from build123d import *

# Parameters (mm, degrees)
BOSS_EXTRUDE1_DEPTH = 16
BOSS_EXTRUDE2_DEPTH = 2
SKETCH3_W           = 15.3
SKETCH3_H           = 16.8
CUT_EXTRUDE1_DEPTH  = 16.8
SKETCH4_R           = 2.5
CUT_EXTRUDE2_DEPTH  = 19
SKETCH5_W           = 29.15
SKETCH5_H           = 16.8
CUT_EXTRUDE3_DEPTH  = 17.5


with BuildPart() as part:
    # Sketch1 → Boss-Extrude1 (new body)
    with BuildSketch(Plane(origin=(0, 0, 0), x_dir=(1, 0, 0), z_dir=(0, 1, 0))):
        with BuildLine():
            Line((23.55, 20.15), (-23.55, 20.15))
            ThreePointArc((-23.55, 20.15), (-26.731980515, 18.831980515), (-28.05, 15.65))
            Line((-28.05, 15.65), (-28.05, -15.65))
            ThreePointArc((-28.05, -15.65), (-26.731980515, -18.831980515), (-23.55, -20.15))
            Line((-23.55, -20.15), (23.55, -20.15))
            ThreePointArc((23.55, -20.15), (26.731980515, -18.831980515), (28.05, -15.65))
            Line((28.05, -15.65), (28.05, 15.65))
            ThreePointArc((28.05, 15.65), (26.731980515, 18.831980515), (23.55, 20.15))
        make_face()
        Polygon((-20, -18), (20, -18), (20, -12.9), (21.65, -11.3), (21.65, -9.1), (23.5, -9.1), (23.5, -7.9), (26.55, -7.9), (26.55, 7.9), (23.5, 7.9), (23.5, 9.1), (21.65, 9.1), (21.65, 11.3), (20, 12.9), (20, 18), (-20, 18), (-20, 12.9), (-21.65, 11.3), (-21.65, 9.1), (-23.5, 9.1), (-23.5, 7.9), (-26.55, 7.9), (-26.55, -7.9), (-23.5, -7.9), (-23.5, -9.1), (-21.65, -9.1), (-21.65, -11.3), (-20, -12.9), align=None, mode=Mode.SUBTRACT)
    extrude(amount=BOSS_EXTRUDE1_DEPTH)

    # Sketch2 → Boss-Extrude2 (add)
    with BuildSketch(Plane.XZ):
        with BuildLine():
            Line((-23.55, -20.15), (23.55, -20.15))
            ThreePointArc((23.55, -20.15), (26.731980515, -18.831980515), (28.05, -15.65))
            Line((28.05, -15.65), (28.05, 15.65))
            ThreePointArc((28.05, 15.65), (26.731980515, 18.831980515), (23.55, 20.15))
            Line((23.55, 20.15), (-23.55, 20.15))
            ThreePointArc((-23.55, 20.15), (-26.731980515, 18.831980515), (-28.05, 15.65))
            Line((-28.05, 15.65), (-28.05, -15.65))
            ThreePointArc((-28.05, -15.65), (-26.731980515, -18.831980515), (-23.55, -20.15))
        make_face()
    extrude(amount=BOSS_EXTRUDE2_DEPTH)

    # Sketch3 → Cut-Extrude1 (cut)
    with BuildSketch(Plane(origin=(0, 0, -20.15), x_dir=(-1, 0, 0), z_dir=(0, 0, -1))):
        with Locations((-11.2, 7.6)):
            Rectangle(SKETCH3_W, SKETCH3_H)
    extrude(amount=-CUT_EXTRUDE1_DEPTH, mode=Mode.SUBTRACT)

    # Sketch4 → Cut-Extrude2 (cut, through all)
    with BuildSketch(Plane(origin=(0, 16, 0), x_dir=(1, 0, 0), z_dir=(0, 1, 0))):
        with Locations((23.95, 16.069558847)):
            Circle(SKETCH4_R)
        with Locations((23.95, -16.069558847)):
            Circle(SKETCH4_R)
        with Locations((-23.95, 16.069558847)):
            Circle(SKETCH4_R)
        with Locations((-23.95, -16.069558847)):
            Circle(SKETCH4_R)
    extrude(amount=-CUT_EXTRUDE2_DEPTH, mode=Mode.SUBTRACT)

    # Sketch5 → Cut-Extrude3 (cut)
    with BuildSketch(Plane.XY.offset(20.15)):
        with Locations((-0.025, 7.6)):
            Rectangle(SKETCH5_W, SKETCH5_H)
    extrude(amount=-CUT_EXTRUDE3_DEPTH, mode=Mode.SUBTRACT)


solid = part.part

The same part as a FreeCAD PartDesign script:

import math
import FreeCAD as App
import Part
import Sketcher

V = App.Vector
Q = App.Units.Quantity

doc = App.newDocument("Part")
body = doc.addObject("PartDesign::Body", "Body")

sketch1 = body.newObject("Sketcher::SketchObject", "Sketch")
sketch1.AttachmentSupport = (doc.getObject("XZ_Plane"), [""])
sketch1.MapMode = "FlatFace"
sketch1.addGeometry([
    Part.LineSegment(V(23.6, -20.1, 0), V(-23.6, -20.1, 0)),
    Part.ArcOfCircle(Part.Circle(V(-23.5, -15.6, 0), V(0, 0, 1), 4.5), math.radians(-180), math.radians(-90)),
    Part.LineSegment(V(-28.1, -15.7, 0), V(-28.1, 15.7, 0)),
    Part.ArcOfCircle(Part.Circle(V(-23.5, 15.6, 0), V(0, 0, 1), 4.5), math.radians(90), math.radians(180)),
    Part.LineSegment(V(-23.6, 20.1, 0), V(23.6, 20.1, 0)),
    Part.ArcOfCircle(Part.Circle(V(23.5, 15.6, 0), V(0, 0, 1), 4.5), math.radians(0), math.radians(90)),
    Part.LineSegment(V(28.1, 15.7, 0), V(28.1, -15.7, 0)),
    Part.ArcOfCircle(Part.Circle(V(23.5, -15.6, 0), V(0, 0, 1), 4.5), math.radians(-90), math.radians(0)),
    Part.LineSegment(V(20, 18, 0), V(-20, 18, 0)),
    Part.LineSegment(V(-20, 18, 0), V(-20, 12.9, 0)),
    Part.LineSegment(V(-20, 12.9, 0), V(-21.6, 11.3, 0)),
    Part.LineSegment(V(-21.6, 11.3, 0), V(-21.6, 9.1, 0)),
    Part.LineSegment(V(-21.6, 9.1, 0), V(-23.5, 9.1, 0)),
    Part.LineSegment(V(-23.5, 9.1, 0), V(-23.5, 7.9, 0)),
    Part.LineSegment(V(-23.5, 7.9, 0), V(-26.6, 7.9, 0)),
    Part.LineSegment(V(-26.6, 7.9, 0), V(-26.6, -7.9, 0)),
    Part.LineSegment(V(-26.6, -7.9, 0), V(-23.5, -7.9, 0)),
    Part.LineSegment(V(-23.5, -7.9, 0), V(-23.5, -9.1, 0)),
    Part.LineSegment(V(-23.5, -9.1, 0), V(-21.6, -9.1, 0)),
    Part.LineSegment(V(-21.6, -9.1, 0), V(-21.6, -11.3, 0)),
    Part.LineSegment(V(-21.6, -11.3, 0), V(-20, -12.9, 0)),
    Part.LineSegment(V(-20, -12.9, 0), V(-20, -18, 0)),
    Part.LineSegment(V(-20, -18, 0), V(20, -18, 0)),
    Part.LineSegment(V(20, -18, 0), V(20, -12.9, 0)),
    Part.LineSegment(V(20, -12.9, 0), V(21.6, -11.3, 0)),
    Part.LineSegment(V(21.6, -11.3, 0), V(21.6, -9.1, 0)),
    Part.LineSegment(V(21.6, -9.1, 0), V(23.5, -9.1, 0)),
    Part.LineSegment(V(23.5, -9.1, 0), V(23.5, -7.9, 0)),
    Part.LineSegment(V(23.5, -7.9, 0), V(26.6, -7.9, 0)),
    Part.LineSegment(V(26.6, -7.9, 0), V(26.6, 7.9, 0)),
    Part.LineSegment(V(26.6, 7.9, 0), V(23.5, 7.9, 0)),
    Part.LineSegment(V(23.5, 7.9, 0), V(23.5, 9.1, 0)),
    Part.LineSegment(V(23.5, 9.1, 0), V(21.6, 9.1, 0)),
    Part.LineSegment(V(21.6, 9.1, 0), V(21.6, 11.3, 0)),
    Part.LineSegment(V(21.6, 11.3, 0), V(20, 12.9, 0)),
    Part.LineSegment(V(20, 12.9, 0), V(20, 18, 0)),
], False)
sketch1.addConstraint([
    Sketcher.Constraint("Tangent", 0, 2, 1, 2),
    Sketcher.Constraint("Tangent", 1, 1, 2, 1),
    Sketcher.Constraint("Tangent", 2, 2, 3, 2),
    Sketcher.Constraint("Tangent", 3, 1, 4, 1),
    Sketcher.Constraint("Tangent", 4, 2, 5, 2),
    Sketcher.Constraint("Tangent", 5, 1, 6, 1),
    Sketcher.Constraint("Tangent", 6, 2, 7, 2),
    Sketcher.Constraint("Tangent", 7, 1, 0, 1),
    Sketcher.Constraint("Coincident", 8, 2, 9, 1),
    Sketcher.Constraint("Coincident", 9, 2, 10, 1),
    Sketcher.Constraint("Coincident", 10, 2, 11, 1),
    Sketcher.Constraint("Coincident", 11, 2, 12, 1),
    Sketcher.Constraint("Coincident", 12, 2, 13, 1),
    Sketcher.Constraint("Coincident", 13, 2, 14, 1),
    Sketcher.Constraint("Coincident", 14, 2, 15, 1),
    Sketcher.Constraint("Coincident", 15, 2, 16, 1),
    Sketcher.Constraint("Coincident", 16, 2, 17, 1),
    Sketcher.Constraint("Coincident", 17, 2, 18, 1),
    Sketcher.Constraint("Coincident", 18, 2, 19, 1),
    Sketcher.Constraint("Coincident", 19, 2, 20, 1),
    Sketcher.Constraint("Coincident", 20, 2, 21, 1),
    Sketcher.Constraint("Coincident", 21, 2, 22, 1),
    Sketcher.Constraint("Coincident", 22, 2, 23, 1),
    Sketcher.Constraint("Coincident", 23, 2, 24, 1),
    Sketcher.Constraint("Coincident", 24, 2, 25, 1),
    Sketcher.Constraint("Coincident", 25, 2, 26, 1),
    Sketcher.Constraint("Coincident", 26, 2, 27, 1),
    Sketcher.Constraint("Coincident", 27, 2, 28, 1),
    Sketcher.Constraint("Coincident", 28, 2, 29, 1),
    Sketcher.Constraint("Coincident", 29, 2, 30, 1),
    Sketcher.Constraint("Coincident", 30, 2, 31, 1),
    Sketcher.Constraint("Coincident", 31, 2, 32, 1),
    Sketcher.Constraint("Coincident", 32, 2, 33, 1),
    Sketcher.Constraint("Coincident", 33, 2, 34, 1),
    Sketcher.Constraint("Coincident", 34, 2, 35, 1),
    Sketcher.Constraint("Coincident", 35, 2, 8, 1),
    Sketcher.Constraint("Horizontal", 0),
    Sketcher.Constraint("Vertical", 2),
    Sketcher.Constraint("Horizontal", 4),
    Sketcher.Constraint("Vertical", 6),
    Sketcher.Constraint("Horizontal", 8),
    Sketcher.Constraint("Vertical", 9),
    Sketcher.Constraint("Vertical", 11),
    Sketcher.Constraint("Horizontal", 12),
    Sketcher.Constraint("Vertical", 13),
    Sketcher.Constraint("Horizontal", 14),
    Sketcher.Constraint("Vertical", 15),
    Sketcher.Constraint("Horizontal", 16),
    Sketcher.Constraint("Vertical", 17),
    Sketcher.Constraint("Horizontal", 18),
    Sketcher.Constraint("Vertical", 19),
    Sketcher.Constraint("Vertical", 21),
    Sketcher.Constraint("Horizontal", 22),
    Sketcher.Constraint("Vertical", 23),
    Sketcher.Constraint("Vertical", 25),
    Sketcher.Constraint("Horizontal", 26),
    Sketcher.Constraint("Vertical", 27),
    Sketcher.Constraint("Horizontal", 28),
    Sketcher.Constraint("Vertical", 29),
    Sketcher.Constraint("Horizontal", 30),
    Sketcher.Constraint("Vertical", 31),
    Sketcher.Constraint("Horizontal", 32),
    Sketcher.Constraint("Vertical", 33),
    Sketcher.Constraint("Vertical", 35),
    Sketcher.Constraint("Equal", 1, 3),
    Sketcher.Constraint("Equal", 3, 5),
    Sketcher.Constraint("Equal", 5, 7),
    Sketcher.Constraint("Symmetric", 1, 3, 5, 3, -1, 1),
    Sketcher.Constraint("Symmetric", 8, 2, 22, 2, -1, 1),
    Sketcher.Constraint("Symmetric", 10, 2, 24, 2, -1, 1),
    Sketcher.Constraint("Symmetric", 12, 2, 26, 2, -1, 1),
    Sketcher.Constraint("Symmetric", 14, 2, 28, 2, -1, 1),
    Sketcher.Constraint("Symmetric", 16, 2, 30, 2, -1, 1),
    Sketcher.Constraint("Symmetric", 18, 2, 32, 2, -1, 1),
    Sketcher.Constraint("Symmetric", 20, 2, 34, 2, -1, 1),
    Sketcher.Constraint("Symmetric", 20, 2, 23, 2, -2),
    Sketcher.Constraint("Symmetric", 19, 2, 24, 2, -2),
    Sketcher.Constraint("Symmetric", 17, 2, 26, 2, -2),
    Sketcher.Constraint("Parallel", 10, 24),
    Sketcher.Constraint("Parallel", 20, 34),
    Sketcher.Constraint("Horizontal", 16, 2, 27, 2),
    Sketcher.Constraint("Radius", 1, Q("4.5 mm")),
    Sketcher.Constraint("DistanceX", 8, 2, 8, 1, Q("40 mm")),
    Sketcher.Constraint("DistanceX", 0, 2, 0, 1, Q("47.1 mm")),
    Sketcher.Constraint("DistanceY", 2, 1, 2, 2, Q("31.3 mm")),
    Sketcher.Constraint("DistanceY", 9, 2, 9, 1, Q("5.1 mm")),
    Sketcher.Constraint("DistanceY", 11, 2, 11, 1, Q("2.2 mm")),
    Sketcher.Constraint("DistanceY", 13, 2, 13, 1, Q("1.2 mm")),
    Sketcher.Constraint("DistanceY", 15, 2, 15, 1, Q("15.8 mm")),
    Sketcher.Constraint("DistanceY", -1, 1, 8, 2, Q("18 mm")),
    Sketcher.Constraint("DistanceX", 15, 2, 1, 3, Q("3 mm")),
    Sketcher.Constraint("DistanceX", 12, 2, 12, 1, Q("1.85 mm")),
    Sketcher.Constraint("DistanceX", 14, 2, 14, 1, Q("3.05 mm")),
])
pad1 = body.newObject("PartDesign::Pad", "Pad")
pad1.Profile = sketch1
pad1.Length = 16
pad1.Reversed = True

sketch2 = body.newObject("Sketcher::SketchObject", "Sketch001")
sketch2.AttachmentSupport = (doc.getObject("XZ_Plane"), [""])
sketch2.MapMode = "FlatFace"
sketch2.addGeometry([
    Part.LineSegment(V(-23.6, -20.1, 0), V(23.6, -20.1, 0)),
    Part.ArcOfCircle(Part.Circle(V(23.5, -15.6, 0), V(0, 0, 1), 4.5), math.radians(-90), math.radians(0)),
    Part.LineSegment(V(28.1, -15.7, 0), V(28.1, 15.7, 0)),
    Part.ArcOfCircle(Part.Circle(V(23.5, 15.6, 0), V(0, 0, 1), 4.5), math.radians(0), math.radians(90)),
    Part.LineSegment(V(23.6, 20.1, 0), V(-23.6, 20.1, 0)),
    Part.ArcOfCircle(Part.Circle(V(-23.5, 15.6, 0), V(0, 0, 1), 4.5), math.radians(90), math.radians(180)),
    Part.LineSegment(V(-28.1, 15.7, 0), V(-28.1, -15.7, 0)),
    Part.ArcOfCircle(Part.Circle(V(-23.5, -15.6, 0), V(0, 0, 1), 4.5), math.radians(-180), math.radians(-90)),
], False)
sketch2.addConstraint([
    Sketcher.Constraint("Tangent", 0, 2, 1, 1),
    Sketcher.Constraint("Tangent", 1, 2, 2, 1),
    Sketcher.Constraint("Tangent", 2, 2, 3, 1),
    Sketcher.Constraint("Tangent", 3, 2, 4, 1),
    Sketcher.Constraint("Tangent", 4, 2, 5, 1),
    Sketcher.Constraint("Tangent", 5, 2, 6, 1),
    Sketcher.Constraint("Tangent", 6, 2, 7, 1),
    Sketcher.Constraint("Tangent", 7, 2, 0, 1),
    Sketcher.Constraint("Horizontal", 0),
    Sketcher.Constraint("Vertical", 2),
    Sketcher.Constraint("Horizontal", 4),
    Sketcher.Constraint("Vertical", 6),
    Sketcher.Constraint("Equal", 1, 3),
    Sketcher.Constraint("Equal", 3, 5),
    Sketcher.Constraint("Equal", 5, 7),
    Sketcher.Constraint("Symmetric", 1, 3, 5, 3, -1, 1),
    Sketcher.Constraint("Radius", 1, Q("4.5 mm")),
    Sketcher.Constraint("DistanceX", 0, 1, 0, 2, Q("47.1 mm")),
    Sketcher.Constraint("DistanceY", 2, 1, 2, 2, Q("31.3 mm")),
])
pad2 = body.newObject("PartDesign::Pad", "Pad001")
pad2.Profile = sketch2
pad2.Length = 2

sketch3 = body.newObject("Sketcher::SketchObject", "Sketch002")
sketch3.AttachmentSupport = (doc.getObject("XY_Plane"), [""])
sketch3.MapMode = "FlatFace"
sketch3.AttachmentOffset = App.Placement(V(0, 0, -20.15), App.Rotation())
sketch3.addGeometry([
    Part.LineSegment(V(19, 16, 0), V(19, -1, 0)),
    Part.LineSegment(V(19, -1, 0), V(4, -1, 0)),
    Part.LineSegment(V(4, -1, 0), V(4, 16, 0)),
    Part.LineSegment(V(4, 16, 0), V(19, 16, 0)),
], False)
sketch3.addConstraint([
    Sketcher.Constraint("Coincident", 0, 2, 1, 1),
    Sketcher.Constraint("Coincident", 1, 2, 2, 1),
    Sketcher.Constraint("Coincident", 2, 2, 3, 1),
    Sketcher.Constraint("Coincident", 3, 2, 0, 1),
    Sketcher.Constraint("Vertical", 0),
    Sketcher.Constraint("Horizontal", 1),
    Sketcher.Constraint("Vertical", 2),
    Sketcher.Constraint("Horizontal", 3),
    Sketcher.Constraint("DistanceX", 1, 2, 1, 1, Q("15.3 mm")),
    Sketcher.Constraint("DistanceY", 0, 2, 0, 1, Q("16.8 mm")),
    Sketcher.Constraint("DistanceY", -1, 1, 2, 2, Q("16 mm")),
    Sketcher.Constraint("DistanceX", -1, 1, 0, 2, Q("18.85 mm")),
])
pocket1 = body.newObject("PartDesign::Pocket", "Pocket")
pocket1.Profile = sketch3
pocket1.Length = 16.8
pocket1.Reversed = True

sketch4 = body.newObject("Sketcher::SketchObject", "Sketch003")
sketch4.AttachmentSupport = (doc.getObject("XZ_Plane"), [""])
sketch4.MapMode = "FlatFace"
sketch4.AttachmentOffset = App.Placement(V(0, 0, -16), App.Rotation())
sketch4.addGeometry([
    Part.Circle(V(23.9, -16.1, 0), V(0, 0, 1), 2.5),
    Part.Circle(V(23.9, 16.1, 0), V(0, 0, 1), 2.5),
    Part.Circle(V(-23.9, -16.1, 0), V(0, 0, 1), 2.5),
    Part.Circle(V(-23.9, 16.1, 0), V(0, 0, 1), 2.5),
], False)
sketch4.addConstraint([
    Sketcher.Constraint("Equal", 0, 1),
    Sketcher.Constraint("Equal", 1, 2),
    Sketcher.Constraint("Equal", 2, 3),
    Sketcher.Constraint("Symmetric", 1, 3, 2, 3, -1, 1),
    Sketcher.Constraint("Symmetric", 0, 3, 3, 3, -1, 1),
    Sketcher.Constraint("Symmetric", 0, 3, 2, 3, -2),
    Sketcher.Constraint("Diameter", 0, Q("5 mm")),
    Sketcher.Constraint("DistanceX", 2, 3, 0, 3, Q("47.9 mm")),
    Sketcher.Constraint("DistanceY", 0, 3, -1, 1, Q("16.069559 mm")),
])
pocket2 = body.newObject("PartDesign::Pocket", "Pocket001")
pocket2.Profile = sketch4
pocket2.Type = "ThroughAll"
pocket2.Reversed = True

sketch5 = body.newObject("Sketcher::SketchObject", "Sketch004")
sketch5.AttachmentSupport = (doc.getObject("XY_Plane"), [""])
sketch5.MapMode = "FlatFace"
sketch5.AttachmentOffset = App.Placement(V(0, 0, 20.15), App.Rotation())
sketch5.addGeometry([
    Part.LineSegment(V(-15, 16, 0), V(-15, -1, 0)),
    Part.LineSegment(V(-15, -1, 0), V(15, -1, 0)),
    Part.LineSegment(V(15, -1, 0), V(15, 16, 0)),
    Part.LineSegment(V(15, 16, 0), V(-15, 16, 0)),
], False)
sketch5.addConstraint([
    Sketcher.Constraint("Coincident", 0, 2, 1, 1),
    Sketcher.Constraint("Coincident", 1, 2, 2, 1),
    Sketcher.Constraint("Coincident", 2, 2, 3, 1),
    Sketcher.Constraint("Coincident", 3, 2, 0, 1),
    Sketcher.Constraint("Vertical", 0),
    Sketcher.Constraint("Horizontal", 1),
    Sketcher.Constraint("Vertical", 2),
    Sketcher.Constraint("Horizontal", 3),
    Sketcher.Constraint("DistanceY", 0, 2, 0, 1, Q("16.8 mm")),
    Sketcher.Constraint("DistanceY", -1, 1, 2, 2, Q("16 mm")),
    Sketcher.Constraint("DistanceX", 1, 1, 1, 2, Q("29.15 mm")),
    Sketcher.Constraint("DistanceX", 0, 2, -1, 1, Q("14.6 mm")),
])
pocket3 = body.newObject("PartDesign::Pocket", "Pocket002")
pocket3.Profile = sketch5
pocket3.Length = 17.5

doc.recompute()
